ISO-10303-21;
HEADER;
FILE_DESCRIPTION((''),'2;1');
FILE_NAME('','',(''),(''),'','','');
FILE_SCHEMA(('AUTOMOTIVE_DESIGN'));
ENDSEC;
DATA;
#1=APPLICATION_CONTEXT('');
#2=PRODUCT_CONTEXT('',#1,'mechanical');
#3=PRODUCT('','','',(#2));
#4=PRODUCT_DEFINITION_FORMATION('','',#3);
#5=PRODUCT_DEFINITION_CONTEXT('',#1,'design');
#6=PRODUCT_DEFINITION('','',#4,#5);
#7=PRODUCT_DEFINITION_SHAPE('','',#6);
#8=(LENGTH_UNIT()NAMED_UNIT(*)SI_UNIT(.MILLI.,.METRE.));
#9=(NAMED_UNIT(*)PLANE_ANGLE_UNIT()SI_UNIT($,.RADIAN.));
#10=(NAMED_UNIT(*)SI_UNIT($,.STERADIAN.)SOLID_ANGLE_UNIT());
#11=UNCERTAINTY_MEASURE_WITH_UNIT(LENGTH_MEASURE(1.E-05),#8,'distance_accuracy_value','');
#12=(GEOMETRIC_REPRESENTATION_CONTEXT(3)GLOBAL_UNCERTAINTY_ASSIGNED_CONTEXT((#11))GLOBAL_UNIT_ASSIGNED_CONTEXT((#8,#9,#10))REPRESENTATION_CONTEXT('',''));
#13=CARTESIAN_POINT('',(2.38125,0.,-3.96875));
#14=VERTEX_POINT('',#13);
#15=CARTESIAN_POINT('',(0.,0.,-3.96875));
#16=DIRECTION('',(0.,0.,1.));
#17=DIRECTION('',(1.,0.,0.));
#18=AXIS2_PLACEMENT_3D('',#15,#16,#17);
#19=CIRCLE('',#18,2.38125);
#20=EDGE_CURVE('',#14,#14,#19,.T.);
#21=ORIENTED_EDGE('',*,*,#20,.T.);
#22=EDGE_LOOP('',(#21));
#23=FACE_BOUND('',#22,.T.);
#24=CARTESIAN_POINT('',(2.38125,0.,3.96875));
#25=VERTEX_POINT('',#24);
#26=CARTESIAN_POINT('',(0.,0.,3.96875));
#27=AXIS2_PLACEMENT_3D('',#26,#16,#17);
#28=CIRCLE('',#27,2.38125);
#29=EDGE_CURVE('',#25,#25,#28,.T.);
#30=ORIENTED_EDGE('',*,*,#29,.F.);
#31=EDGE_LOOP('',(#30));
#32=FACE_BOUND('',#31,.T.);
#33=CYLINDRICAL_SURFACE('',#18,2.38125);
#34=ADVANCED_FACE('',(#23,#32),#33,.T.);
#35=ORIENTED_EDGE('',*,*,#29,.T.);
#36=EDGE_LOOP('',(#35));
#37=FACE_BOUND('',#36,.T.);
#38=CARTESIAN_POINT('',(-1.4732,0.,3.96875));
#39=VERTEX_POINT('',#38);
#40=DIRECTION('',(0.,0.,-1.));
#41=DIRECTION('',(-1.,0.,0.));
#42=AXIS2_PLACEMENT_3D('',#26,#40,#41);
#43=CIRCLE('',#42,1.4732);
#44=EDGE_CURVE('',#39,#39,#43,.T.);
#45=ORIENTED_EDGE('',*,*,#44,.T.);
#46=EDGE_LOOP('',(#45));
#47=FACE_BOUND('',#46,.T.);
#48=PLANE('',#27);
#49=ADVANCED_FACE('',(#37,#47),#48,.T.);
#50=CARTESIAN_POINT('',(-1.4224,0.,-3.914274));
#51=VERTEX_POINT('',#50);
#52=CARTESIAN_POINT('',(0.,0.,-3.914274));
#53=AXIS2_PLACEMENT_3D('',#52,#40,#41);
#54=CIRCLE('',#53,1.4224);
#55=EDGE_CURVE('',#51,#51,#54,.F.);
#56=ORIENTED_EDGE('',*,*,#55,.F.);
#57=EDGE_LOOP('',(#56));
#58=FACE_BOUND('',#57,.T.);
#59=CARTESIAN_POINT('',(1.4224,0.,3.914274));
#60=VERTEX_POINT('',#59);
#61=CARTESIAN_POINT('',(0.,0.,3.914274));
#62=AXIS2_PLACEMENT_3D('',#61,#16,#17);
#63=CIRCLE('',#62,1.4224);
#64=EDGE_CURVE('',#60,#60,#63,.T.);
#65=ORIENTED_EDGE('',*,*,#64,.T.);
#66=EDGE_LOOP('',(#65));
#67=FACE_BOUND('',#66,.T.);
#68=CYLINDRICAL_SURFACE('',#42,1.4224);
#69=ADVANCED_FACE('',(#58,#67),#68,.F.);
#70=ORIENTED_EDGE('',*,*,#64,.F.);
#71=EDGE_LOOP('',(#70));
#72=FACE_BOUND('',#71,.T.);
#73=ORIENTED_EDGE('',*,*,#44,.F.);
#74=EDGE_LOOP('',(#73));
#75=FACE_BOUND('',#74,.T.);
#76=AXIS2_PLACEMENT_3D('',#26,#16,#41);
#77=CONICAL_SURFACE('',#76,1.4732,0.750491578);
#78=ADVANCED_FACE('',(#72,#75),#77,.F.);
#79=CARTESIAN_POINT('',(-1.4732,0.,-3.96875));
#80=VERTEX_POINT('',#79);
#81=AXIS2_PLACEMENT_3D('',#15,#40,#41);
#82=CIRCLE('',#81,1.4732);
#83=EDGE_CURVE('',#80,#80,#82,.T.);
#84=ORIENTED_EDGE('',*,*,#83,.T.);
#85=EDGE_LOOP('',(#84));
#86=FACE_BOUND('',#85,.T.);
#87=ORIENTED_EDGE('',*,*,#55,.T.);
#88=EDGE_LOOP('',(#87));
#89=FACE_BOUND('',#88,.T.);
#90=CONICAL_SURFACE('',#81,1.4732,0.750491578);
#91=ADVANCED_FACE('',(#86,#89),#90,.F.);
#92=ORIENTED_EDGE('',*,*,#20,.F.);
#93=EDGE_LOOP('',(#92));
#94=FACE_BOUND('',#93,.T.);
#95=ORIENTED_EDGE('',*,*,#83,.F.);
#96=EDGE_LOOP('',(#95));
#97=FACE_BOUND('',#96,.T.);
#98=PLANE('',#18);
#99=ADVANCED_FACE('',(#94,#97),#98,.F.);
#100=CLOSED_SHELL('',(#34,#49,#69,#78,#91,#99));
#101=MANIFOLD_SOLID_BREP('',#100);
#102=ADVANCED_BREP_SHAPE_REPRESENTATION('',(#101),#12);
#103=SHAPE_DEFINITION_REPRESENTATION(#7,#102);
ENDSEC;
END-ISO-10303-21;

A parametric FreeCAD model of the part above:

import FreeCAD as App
import Part
import Sketcher
Q = App.Units.Quantity


def add_polygon(sketch, points):
    """Adds a closed chain of lines whose ends are joined by coincident constraints."""
    first, n = sketch.GeometryCount, len(points)
    for a, b in zip(points, points[1:] + points[:1]):
        sketch.addGeometry(Part.LineSegment(App.Vector(*a, 0), App.Vector(*b, 0)), False)
    for i in range(n):
        sketch.addConstraint(Sketcher.Constraint("Coincident", first + i, 2, first + (i + 1) % n, 1))

doc = App.newDocument("Part")
body = doc.addObject("PartDesign::Body", "Body")

# Sketch on XY plane
sketch1 = body.newObject("Sketcher::SketchObject", "Sketch")
sketch1.AttachmentSupport = (doc.getObject("XY_Plane"), [""])
sketch1.MapMode = "FlatFace"
sketch1.addGeometry([
    Part.Circle(App.Vector(0, 0, 0), App.Vector(0, 0, 1), 3.175),
    Part.Circle(App.Vector(0, 0, 0), App.Vector(0, 0, 1), 1.4224),
], False)
sketch1.addConstraint([
    Sketcher.Constraint("Coincident", 0, 3, -1, 1),
    Sketcher.Constraint("Coincident", 1, 3, -1, 1),
    Sketcher.Constraint("Diameter", 0, Q("0.25 in")),
    Sketcher.Constraint("Diameter", 1, Q("0.112 in")),
])
pad1 = body.newObject("PartDesign::Pad", "Pad")
pad1.Profile = sketch1
pad1.Type = "TwoLengths"
pad1.Length = Q("0.15625 in")
pad1.Length2 = Q("0.15625 in")

# Sketch on YZ plane
sketch2 = body.newObject("Sketcher::SketchObject", "Sketch001")
sketch2.AttachmentSupport = (doc.getObject("YZ_Plane"), [""])
sketch2.MapMode = "FlatFace"
add_polygon(sketch2, [(0, -3.96875), (1.4732, -3.96875), (0, -2.388936)])  # lines 0-2
sketch2.addConstraint([
    Sketcher.Constraint("Horizontal", 0),
    Sketcher.Constraint("Vertical", 2),
    Sketcher.Constraint("PointOnObject", 1, 2, -2),
    Sketcher.Constraint("Angle", 1, Q("133 deg")),
    Sketcher.Constraint("DistanceX", 0, 1, 0, 2, Q("0.058 in")),
    Sketcher.Constraint("DistanceY", 0, 2, -1, 1, Q("0.15625 in")),
])
groove = body.newObject("PartDesign::Groove", "Groove")
groove.Profile = sketch2
groove.ReferenceAxis = (sketch2, ["V_Axis"])
groove.Angle = 360
doc.recompute()

mirrored = body.newObject("PartDesign::Mirrored", "Mirrored")
mirrored.Originals = [groove]
mirrored.MirrorPlane = (doc.getObject("XY_Plane"), [""])
body.Tip = mirrored

# Sketch on XY plane
sketch3 = body.newObject("Sketcher::SketchObject", "Sketch002")
sketch3.AttachmentSupport = (doc.getObject("XY_Plane"), [""])
sketch3.MapMode = "FlatFace"
sketch3.AttachmentOffset = App.Placement(App.Vector(0, 0, 0.15625 * 25.4), App.Rotation())
add_polygon(sketch3, [(-5.374, 5.374), (-5.374, -5.374), (5.374, -5.374), (5.374, 5.374)])  # lines 0-3
sketch3.addGeometry(Part.Circle(App.Vector(0, 0, 0), App.Vector(0, 0, 1), 2.38125), False)  # 4
sketch3.addConstraint([
    Sketcher.Constraint("Vertical", 0),
    Sketcher.Constraint("Horizontal", 1),
    Sketcher.Constraint("Vertical", 2),
    Sketcher.Constraint("Horizontal", 3),
    Sketcher.Constraint("Coincident", 4, 3, -1, 1),
    Sketcher.Constraint("Symmetric", 0, 2, 2, 2, -1, 1),
    Sketcher.Constraint("Equal", 3, 0),
    Sketcher.Constraint("Diameter", 4, Q("0.1875 in")),
    Sketcher.Constraint("DistanceX", 1, 1, 1, 2, Q("10.748 mm")),
])
pocket1 = body.newObject("PartDesign::Pocket", "Pocket")
pocket1.Profile = sketch3
pocket1.Type = "ThroughAll"

doc.recompute()
